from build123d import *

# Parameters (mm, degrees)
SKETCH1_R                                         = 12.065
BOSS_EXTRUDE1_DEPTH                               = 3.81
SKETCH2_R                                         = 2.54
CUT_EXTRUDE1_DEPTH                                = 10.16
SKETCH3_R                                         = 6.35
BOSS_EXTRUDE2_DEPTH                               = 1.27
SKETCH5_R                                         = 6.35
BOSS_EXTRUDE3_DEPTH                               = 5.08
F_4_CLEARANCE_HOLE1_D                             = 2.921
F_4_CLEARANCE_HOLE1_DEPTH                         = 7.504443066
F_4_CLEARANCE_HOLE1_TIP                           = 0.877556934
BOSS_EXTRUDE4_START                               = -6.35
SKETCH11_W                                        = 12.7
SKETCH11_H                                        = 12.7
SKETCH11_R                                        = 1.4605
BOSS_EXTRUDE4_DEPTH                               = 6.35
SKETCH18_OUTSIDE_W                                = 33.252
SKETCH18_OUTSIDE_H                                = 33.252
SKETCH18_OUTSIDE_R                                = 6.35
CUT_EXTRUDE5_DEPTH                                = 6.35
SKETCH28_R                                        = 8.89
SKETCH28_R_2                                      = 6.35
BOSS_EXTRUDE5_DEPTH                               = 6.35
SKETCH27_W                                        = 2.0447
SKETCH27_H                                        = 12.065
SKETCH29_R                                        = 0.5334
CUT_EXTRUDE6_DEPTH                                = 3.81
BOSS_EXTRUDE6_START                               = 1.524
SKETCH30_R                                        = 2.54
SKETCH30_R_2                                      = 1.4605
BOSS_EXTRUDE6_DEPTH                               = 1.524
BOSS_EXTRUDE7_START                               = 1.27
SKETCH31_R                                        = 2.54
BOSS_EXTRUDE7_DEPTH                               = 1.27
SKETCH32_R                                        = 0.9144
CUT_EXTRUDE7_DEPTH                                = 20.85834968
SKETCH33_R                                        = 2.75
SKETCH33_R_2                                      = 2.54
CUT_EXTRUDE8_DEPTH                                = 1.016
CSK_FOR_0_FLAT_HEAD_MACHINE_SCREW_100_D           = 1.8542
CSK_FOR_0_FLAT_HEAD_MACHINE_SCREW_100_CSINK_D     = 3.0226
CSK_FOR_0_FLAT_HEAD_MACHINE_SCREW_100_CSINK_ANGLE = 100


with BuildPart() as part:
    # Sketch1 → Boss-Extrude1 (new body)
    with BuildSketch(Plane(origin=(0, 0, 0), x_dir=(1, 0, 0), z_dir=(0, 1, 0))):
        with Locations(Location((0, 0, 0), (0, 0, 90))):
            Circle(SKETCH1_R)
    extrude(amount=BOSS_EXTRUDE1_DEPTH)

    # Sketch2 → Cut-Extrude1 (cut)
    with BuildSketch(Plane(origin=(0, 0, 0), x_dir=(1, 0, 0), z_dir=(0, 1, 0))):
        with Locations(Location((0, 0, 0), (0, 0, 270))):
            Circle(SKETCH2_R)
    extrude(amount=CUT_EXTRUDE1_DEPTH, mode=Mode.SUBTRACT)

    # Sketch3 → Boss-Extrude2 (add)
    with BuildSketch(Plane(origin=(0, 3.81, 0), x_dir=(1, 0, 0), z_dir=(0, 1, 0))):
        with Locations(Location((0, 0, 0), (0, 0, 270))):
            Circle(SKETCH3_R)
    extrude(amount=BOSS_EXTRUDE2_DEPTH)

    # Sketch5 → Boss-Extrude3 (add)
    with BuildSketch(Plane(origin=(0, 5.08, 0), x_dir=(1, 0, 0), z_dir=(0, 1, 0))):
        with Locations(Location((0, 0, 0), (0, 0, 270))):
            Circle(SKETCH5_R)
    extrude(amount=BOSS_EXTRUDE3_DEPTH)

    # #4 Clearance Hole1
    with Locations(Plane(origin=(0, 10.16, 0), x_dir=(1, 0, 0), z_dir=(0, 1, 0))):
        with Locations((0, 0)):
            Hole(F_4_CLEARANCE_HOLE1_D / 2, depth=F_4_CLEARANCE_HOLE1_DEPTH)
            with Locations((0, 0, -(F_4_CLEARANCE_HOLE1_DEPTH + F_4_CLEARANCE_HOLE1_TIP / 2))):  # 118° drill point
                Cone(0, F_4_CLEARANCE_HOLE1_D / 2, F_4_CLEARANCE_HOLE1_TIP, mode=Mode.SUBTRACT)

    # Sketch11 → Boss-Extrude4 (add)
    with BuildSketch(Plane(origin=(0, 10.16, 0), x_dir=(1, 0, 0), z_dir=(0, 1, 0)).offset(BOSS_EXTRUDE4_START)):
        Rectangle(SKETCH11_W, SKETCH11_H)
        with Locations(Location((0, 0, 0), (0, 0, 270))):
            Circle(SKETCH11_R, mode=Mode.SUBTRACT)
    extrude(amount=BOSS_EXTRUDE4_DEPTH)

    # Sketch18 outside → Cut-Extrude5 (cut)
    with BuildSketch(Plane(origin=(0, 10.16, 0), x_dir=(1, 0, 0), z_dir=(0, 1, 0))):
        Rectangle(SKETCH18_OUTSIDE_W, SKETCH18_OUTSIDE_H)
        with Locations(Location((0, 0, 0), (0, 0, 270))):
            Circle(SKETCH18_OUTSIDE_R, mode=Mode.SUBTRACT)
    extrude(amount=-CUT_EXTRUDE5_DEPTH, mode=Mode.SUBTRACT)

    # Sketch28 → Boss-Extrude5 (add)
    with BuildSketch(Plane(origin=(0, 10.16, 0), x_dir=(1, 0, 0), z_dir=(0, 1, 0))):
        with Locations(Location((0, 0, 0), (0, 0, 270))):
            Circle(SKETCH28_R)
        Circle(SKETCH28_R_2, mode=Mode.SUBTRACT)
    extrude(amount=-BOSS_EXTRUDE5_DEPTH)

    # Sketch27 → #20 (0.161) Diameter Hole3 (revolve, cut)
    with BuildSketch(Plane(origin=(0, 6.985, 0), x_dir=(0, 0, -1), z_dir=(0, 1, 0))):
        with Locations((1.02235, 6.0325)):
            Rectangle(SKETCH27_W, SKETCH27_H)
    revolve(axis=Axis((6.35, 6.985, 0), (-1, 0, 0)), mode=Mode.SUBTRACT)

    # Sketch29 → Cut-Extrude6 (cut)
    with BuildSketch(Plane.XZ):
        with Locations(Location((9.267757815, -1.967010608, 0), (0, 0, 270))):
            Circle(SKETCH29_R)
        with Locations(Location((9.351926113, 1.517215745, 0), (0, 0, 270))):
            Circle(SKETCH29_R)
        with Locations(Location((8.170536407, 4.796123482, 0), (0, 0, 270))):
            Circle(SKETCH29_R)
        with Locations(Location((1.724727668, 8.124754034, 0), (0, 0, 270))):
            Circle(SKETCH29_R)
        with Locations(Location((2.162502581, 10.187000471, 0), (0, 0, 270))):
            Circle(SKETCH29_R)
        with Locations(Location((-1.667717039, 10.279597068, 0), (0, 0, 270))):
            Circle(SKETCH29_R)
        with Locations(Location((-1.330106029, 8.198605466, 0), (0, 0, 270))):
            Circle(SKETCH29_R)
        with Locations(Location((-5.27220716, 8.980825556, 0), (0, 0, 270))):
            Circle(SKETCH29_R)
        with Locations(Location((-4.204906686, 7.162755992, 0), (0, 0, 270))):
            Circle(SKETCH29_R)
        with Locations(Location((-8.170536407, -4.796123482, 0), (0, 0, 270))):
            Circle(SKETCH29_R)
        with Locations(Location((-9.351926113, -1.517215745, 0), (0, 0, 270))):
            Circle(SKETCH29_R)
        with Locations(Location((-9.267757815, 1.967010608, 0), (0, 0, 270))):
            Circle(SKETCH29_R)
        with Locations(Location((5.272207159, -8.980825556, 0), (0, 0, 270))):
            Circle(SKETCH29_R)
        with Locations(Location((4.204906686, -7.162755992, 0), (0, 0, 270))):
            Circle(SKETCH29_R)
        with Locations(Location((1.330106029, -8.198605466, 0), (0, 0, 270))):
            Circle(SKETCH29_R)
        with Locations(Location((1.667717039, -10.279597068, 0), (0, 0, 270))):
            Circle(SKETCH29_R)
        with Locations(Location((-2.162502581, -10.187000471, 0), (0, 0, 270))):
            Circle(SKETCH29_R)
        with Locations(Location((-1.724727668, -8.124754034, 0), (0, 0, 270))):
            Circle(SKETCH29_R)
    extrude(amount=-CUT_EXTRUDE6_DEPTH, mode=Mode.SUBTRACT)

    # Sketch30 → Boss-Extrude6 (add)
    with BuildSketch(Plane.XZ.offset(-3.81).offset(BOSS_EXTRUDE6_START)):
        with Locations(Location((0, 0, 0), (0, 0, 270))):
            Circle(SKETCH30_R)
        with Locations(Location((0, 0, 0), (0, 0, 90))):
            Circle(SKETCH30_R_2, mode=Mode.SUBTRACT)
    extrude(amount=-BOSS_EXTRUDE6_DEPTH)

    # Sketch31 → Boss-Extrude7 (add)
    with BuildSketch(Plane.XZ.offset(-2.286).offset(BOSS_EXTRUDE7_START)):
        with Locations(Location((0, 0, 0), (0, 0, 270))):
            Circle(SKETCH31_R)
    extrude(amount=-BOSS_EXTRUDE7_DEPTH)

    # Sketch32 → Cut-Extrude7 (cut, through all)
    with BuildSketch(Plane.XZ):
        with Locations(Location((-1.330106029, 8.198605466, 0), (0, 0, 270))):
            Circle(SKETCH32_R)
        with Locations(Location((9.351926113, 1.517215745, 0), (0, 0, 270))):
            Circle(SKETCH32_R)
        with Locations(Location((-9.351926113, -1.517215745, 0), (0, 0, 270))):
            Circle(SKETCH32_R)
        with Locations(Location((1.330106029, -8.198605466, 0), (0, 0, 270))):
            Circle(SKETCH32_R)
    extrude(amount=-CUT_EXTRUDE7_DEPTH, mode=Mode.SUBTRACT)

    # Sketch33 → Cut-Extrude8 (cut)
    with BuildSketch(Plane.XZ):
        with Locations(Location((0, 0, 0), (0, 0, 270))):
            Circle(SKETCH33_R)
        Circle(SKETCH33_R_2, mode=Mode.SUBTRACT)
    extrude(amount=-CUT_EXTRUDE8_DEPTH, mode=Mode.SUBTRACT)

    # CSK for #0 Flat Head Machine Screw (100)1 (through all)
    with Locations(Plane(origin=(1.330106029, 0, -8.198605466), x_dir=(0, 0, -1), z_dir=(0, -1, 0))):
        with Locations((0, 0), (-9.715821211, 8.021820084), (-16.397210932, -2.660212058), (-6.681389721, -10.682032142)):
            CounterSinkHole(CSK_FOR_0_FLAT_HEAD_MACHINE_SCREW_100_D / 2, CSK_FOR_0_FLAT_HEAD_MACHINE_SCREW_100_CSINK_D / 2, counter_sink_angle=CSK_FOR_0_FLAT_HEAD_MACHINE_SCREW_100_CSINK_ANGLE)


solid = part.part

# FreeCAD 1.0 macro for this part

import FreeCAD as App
import Part
import Sketcher
Q = App.Units.Quantity

doc = App.newDocument("Part")
body = doc.addObject("PartDesign::Body", "Body")

sketch1 = doc.addObject("Sketcher::SketchObject", "Sketch")
body.addObject(sketch1)
sketch1.AttachmentSupport = (doc.XZ_Plane, [""])
sketch1.MapMode = "FlatFace"
sketch1.addGeometry(Part.Circle(App.Vector(0, 0, 0), App.Vector(0, 0, 1), 12.065), False)
sketch1.addConstraint([
    Sketcher.Constraint("Coincident", 0, 3, -1, 1),
    Sketcher.Constraint("Diameter", 0, Q("0.95 in")),
])
pad1 = doc.addObject("PartDesign::Pad", "Pad")
body.addObject(pad1)
pad1.Profile = sketch1
pad1.Length = Q("0.15 in")
pad1.Reversed = True

sketch2 = doc.addObject("Sketcher::SketchObject", "Sketch001")
body.addObject(sketch2)
sketch2.AttachmentSupport = (doc.XZ_Plane, [""])
sketch2.MapMode = "FlatFace"
sketch2.addGeometry(Part.Circle(App.Vector(0, 0, 0), App.Vector(0, 0, 1), 2.54), False)
sketch2.addConstraint([
    Sketcher.Constraint("Coincident", 0, 3, -1, 1),
    Sketcher.Constraint("Diameter", 0, Q("0.2 in")),
])
pocket1 = doc.addObject("PartDesign::Pocket", "Pocket")
body.addObject(pocket1)
pocket1.Profile = sketch2
pocket1.Length = Q("0.4 in")

sketch3 = doc.addObject("Sketcher::SketchObject", "Sketch002")
body.addObject(sketch3)
sketch3.AttachmentSupport = (doc.XZ_Plane, [""])
sketch3.MapMode = "FlatFace"
sketch3.AttachmentOffset = App.Placement(App.Vector(0, 0, -0.15 * 25.4), App.Rotation())
sketch3.addGeometry(Part.Circle(App.Vector(0, 0, 0), App.Vector(0, 0, 1), 6.35), False)
sketch3.addConstraint([
    Sketcher.Constraint("Coincident", 0, 3, -1, 1),
    Sketcher.Constraint("Diameter", 0, Q("0.5 in")),
])
pad2 = doc.addObject("PartDesign::Pad", "Pad001")
body.addObject(pad2)
pad2.Profile = sketch3
pad2.Length = Q("0.05 in")
pad2.Reversed = True

sketch4 = doc.addObject("Sketcher::SketchObject", "Sketch003")
body.addObject(sketch4)
sketch4.AttachmentSupport = (doc.XZ_Plane, [""])
sketch4.MapMode = "FlatFace"
sketch4.AttachmentOffset = App.Placement(App.Vector(0, 0, -0.2 * 25.4), App.Rotation())
sketch4.addGeometry(Part.Circle(App.Vector(0, 0, 0), App.Vector(0, 0, 1), 6.35), False)
sketch4.addConstraint([
    Sketcher.Constraint("Coincident", 0, 3, -1, 1),
    Sketcher.Constraint("Diameter", 0, Q("0.5 in")),
])
pad3 = doc.addObject("PartDesign::Pad", "Pad002")
body.addObject(pad3)
pad3.Profile = sketch4
pad3.Length = Q("0.2 in")
pad3.Reversed = True

sketch5 = doc.addObject("Sketcher::SketchObject", "Sketch004")
body.addObject(sketch5)
sketch5.AttachmentSupport = (doc.XZ_Plane, [""])
sketch5.MapMode = "FlatFace"
sketch5.AttachmentOffset = App.Placement(App.Vector(0, 0, -0.4 * 25.4), App.Rotation())
sketch5.addGeometry(Part.Circle(App.Vector(0, 0, 0), App.Vector(0, 0, 1), 1.4605), False)
sketch5.addConstraint([
    Sketcher.Constraint("Coincident", 0, 3, -1, 1),
    Sketcher.Constraint("Diameter", 0, Q("0.115 in")),
])
doc.recompute()
hole = doc.addObject("PartDesign::Hole", "Hole")
body.addObject(hole)
hole.Profile = sketch5
hole.ThreadType = "None"
hole.Diameter = Q("0.115 in")
hole.DepthType = "Dimension"
hole.Depth = 7.504443
hole.DrillPoint = "Angled"
hole.DrillPointAngle = 118
hole.Reversed = True

sketch6 = doc.addObject("Sketcher::SketchObject", "Sketch005")
body.addObject(sketch6)
sketch6.AttachmentSupport = (doc.XZ_Plane, [""])
sketch6.MapMode = "FlatFace"
sketch6.AttachmentOffset = App.Placement(App.Vector(0, 0, -0.15 * 25.4), App.Rotation())
sketch6.addGeometry([
    Part.LineSegment(App.Vector(-6.35, -6.35, 0), App.Vector(-6.35, 6.35, 0)),
    Part.LineSegment(App.Vector(-6.35, 6.35, 0), App.Vector(6.35, 6.35, 0)),
    Part.LineSegment(App.Vector(6.35, 6.35, 0), App.Vector(6.35, -6.35, 0)),
    Part.LineSegment(App.Vector(6.35, -6.35, 0), App.Vector(-6.35, -6.35, 0)),
    Part.Circle(App.Vector(0, 0, 0), App.Vector(0, 0, 1), 1.4605),
], False)
sketch6.addConstraint([
    Sketcher.Constraint("Coincident", 0, 2, 1, 1),
    Sketcher.Constraint("Coincident", 1, 2, 2, 1),
    Sketcher.Constraint("Coincident", 2, 2, 3, 1),
    Sketcher.Constraint("Coincident", 3, 2, 0, 1),
    Sketcher.Constraint("Vertical", 0),
    Sketcher.Constraint("Horizontal", 1),
    Sketcher.Constraint("Vertical", 2),
    Sketcher.Constraint("Horizontal", 3),
    Sketcher.Constraint("Coincident", 4, 3, -1, 1),
    Sketcher.Constraint("Symmetric", 0, 2, 2, 2, -1, 1),
    Sketcher.Constraint("Equal", 3, 0),
    Sketcher.Constraint("Diameter", 4, Q("0.115 in")),
    Sketcher.Constraint("DistanceX", 1, 1, 1, 2, Q("0.5 in")),
])
pad4 = doc.addObject("PartDesign::Pad", "Pad003")
body.addObject(pad4)
pad4.Profile = sketch6
pad4.Length = Q("0.25 in")
pad4.Reversed = True

sketch7 = doc.addObject("Sketcher::SketchObject", "Sketch006")
body.addObject(sketch7)
sketch7.AttachmentSupport = (doc.XZ_Plane, [""])
sketch7.MapMode = "FlatFace"
sketch7.AttachmentOffset = App.Placement(App.Vector(0, 0, -0.4 * 25.4), App.Rotation())
sketch7.addGeometry([
    Part.LineSegment(App.Vector(-16.626, -16.626, 0), App.Vector(-16.626, 16.626, 0)),
    Part.LineSegment(App.Vector(-16.626, 16.626, 0), App.Vector(16.626, 16.626, 0)),
    Part.LineSegment(App.Vector(16.626, 16.626, 0), App.Vector(16.626, -16.626, 0)),
    Part.LineSegment(App.Vector(16.626, -16.626, 0), App.Vector(-16.626, -16.626, 0)),
    Part.Circle(App.Vector(0, 0, 0), App.Vector(0, 0, 1), 6.35),
], False)
sketch7.addConstraint([
    Sketcher.Constraint("Coincident", 0, 2, 1, 1),
    Sketcher.Constraint("Coincident", 1, 2, 2, 1),
    Sketcher.Constraint("Coincident", 2, 2, 3, 1),
    Sketcher.Constraint("Coincident", 3, 2, 0, 1),
    Sketcher.Constraint("Vertical", 0),
    Sketcher.Constraint("Horizontal", 1),
    Sketcher.Constraint("Vertical", 2),
    Sketcher.Constraint("Horizontal", 3),
    Sketcher.Constraint("Coincident", 4, 3, -1, 1),
    Sketcher.Constraint("Symmetric", 0, 2, 2, 2, -1, 1),
    Sketcher.Constraint("Equal", 3, 0),
    Sketcher.Constraint("Diameter", 4, Q("0.5 in")),
    Sketcher.Constraint("DistanceX", 1, 1, 1, 2, 33.252),
])
pocket2 = doc.addObject("PartDesign::Pocket", "Pocket001")
body.addObject(pocket2)
pocket2.Profile = sketch7
pocket2.Length = Q("0.25 in")
pocket2.Reversed = True

sketch8 = doc.addObject("Sketcher::SketchObject", "Sketch007")
body.addObject(sketch8)
sketch8.AttachmentSupport = (doc.XZ_Plane, [""])
sketch8.MapMode = "FlatFace"
sketch8.AttachmentOffset = App.Placement(App.Vector(0, 0, -0.4 * 25.4), App.Rotation())
sketch8.addGeometry([
    Part.Circle(App.Vector(0, 0, 0), App.Vector(0, 0, 1), 8.89),
    Part.Circle(App.Vector(0, 0, 0), App.Vector(0, 0, 1), 6.35),
], False)
sketch8.addConstraint([
    Sketcher.Constraint("Coincident", 0, 3, -1, 1),
    Sketcher.Constraint("Coincident", 1, 3, -1, 1),
    Sketcher.Constraint("Diameter", 0, Q("0.7 in")),
    Sketcher.Constraint("Diameter", 1, Q("0.5 in")),
])
pad5 = doc.addObject("PartDesign::Pad", "Pad004")
body.addObject(pad5)
pad5.Profile = sketch8
pad5.Length = Q("0.25 in")

sketch9 = doc.addObject("Sketcher::SketchObject", "Sketch008")
body.addObject(sketch9)
sketch9.AttachmentSupport = (doc.XZ_Plane, [""])
sketch9.MapMode = "FlatFace"
sketch9.AttachmentOffset = App.Placement(App.Vector(0, 0, -0.275 * 25.4), App.Rotation())
sketch9.addGeometry([
    Part.LineSegment(App.Vector(-12.065, 0, 0), App.Vector(0, 0, 0)),
    Part.LineSegment(App.Vector(0, 0, 0), App.Vector(0, -2.0447, 0)),
    Part.LineSegment(App.Vector(0, -2.0447, 0), App.Vector(-12.065, -2.0447, 0)),
    Part.LineSegment(App.Vector(-12.065, -2.0447, 0), App.Vector(-12.065, 0, 0)),
], False)
sketch9.addConstraint([
    Sketcher.Constraint("Coincident", 0, 2, 1, 1),
    Sketcher.Constraint("Coincident", 1, 2, 2, 1),
    Sketcher.Constraint("Coincident", 2, 2, 3, 1),
    Sketcher.Constraint("Coincident", 3, 2, 0, 1),
    Sketcher.Constraint("Horizontal", 0),
    Sketcher.Constraint("Vertical", 1),
    Sketcher.Constraint("Horizontal", 2),
    Sketcher.Constraint("Vertical", 3),
    Sketcher.Constraint("Coincident", 0, 2, -1, 1),
    Sketcher.Constraint("DistanceX", 0, 1, 0, 2, Q("0.475 in")),
    Sketcher.Constraint("DistanceY", 1, 2, 1, 1, Q("0.0805 in")),
])
groove = doc.addObject("PartDesign::Groove", "Groove")
body.addObject(groove)
groove.Profile = sketch9
groove.ReferenceAxis = (sketch9, ["H_Axis"])
groove.Angle = 360

sketch10 = doc.addObject("Sketcher::SketchObject", "Sketch009")
body.addObject(sketch10)
sketch10.AttachmentSupport = (doc.XZ_Plane, [""])
sketch10.MapMode = "FlatFace"
sketch10.addGeometry([
    Part.Circle(App.Vector(9.267758, -1.967011, 0), App.Vector(0, 0, 1), 0.5334),
    Part.Circle(App.Vector(9.351926, 1.517216, 0), App.Vector(0, 0, 1), 0.5334),
    Part.Circle(App.Vector(8.170536, 4.796123, 0), App.Vector(0, 0, 1), 0.5334),
    Part.Circle(App.Vector(1.724728, 8.124754, 0), App.Vector(0, 0, 1), 0.5334),
    Part.Circle(App.Vector(2.162503, 10.187, 0), App.Vector(0, 0, 1), 0.5334),
    Part.Circle(App.Vector(-1.667717, 10.279597, 0), App.Vector(0, 0, 1), 0.5334),
    Part.Circle(App.Vector(-1.330106, 8.198605, 0), App.Vector(0, 0, 1), 0.5334),
    Part.Circle(App.Vector(-5.272207, 8.980826, 0), App.Vector(0, 0, 1), 0.5334),
    Part.Circle(App.Vector(-4.204907, 7.162756, 0), App.Vector(0, 0, 1), 0.5334),
    Part.Circle(App.Vector(-8.170536, -4.796123, 0), App.Vector(0, 0, 1), 0.5334),
    Part.Circle(App.Vector(-9.351926, -1.517216, 0), App.Vector(0, 0, 1), 0.5334),
    Part.Circle(App.Vector(-9.267758, 1.967011, 0), App.Vector(0, 0, 1), 0.5334),
    Part.Circle(App.Vector(5.272207, -8.980826, 0), App.Vector(0, 0, 1), 0.5334),
    Part.Circle(App.Vector(4.204907, -7.162756, 0), App.Vector(0, 0, 1), 0.5334),
    Part.Circle(App.Vector(1.330106, -8.198605, 0), App.Vector(0, 0, 1), 0.5334),
    Part.Circle(App.Vector(1.667717, -10.279597, 0), App.Vector(0, 0, 1), 0.5334),
    Part.Circle(App.Vector(-2.162503, -10.187, 0), App.Vector(0, 0, 1), 0.5334),
    Part.Circle(App.Vector(-1.724728, -8.124754, 0), App.Vector(0, 0, 1), 0.5334),
], False)
sketch10.addConstraint([
    Sketcher.Constraint("Equal", 0, 1),
    Sketcher.Constraint("Equal", 1, 2),
    Sketcher.Constraint("Equal", 2, 3),
    Sketcher.Constraint("Equal", 3, 4),
    Sketcher.Constraint("Equal", 4, 5),
    Sketcher.Constraint("Equal", 5, 6),
    Sketcher.Constraint("Equal", 6, 7),
    Sketcher.Constraint("Equal", 7, 8),
    Sketcher.Constraint("Equal", 8, 9),
    Sketcher.Constraint("Equal", 9, 10),
    Sketcher.Constraint("Equal", 10, 11),
    Sketcher.Constraint("Equal", 11, 12),
    Sketcher.Constraint("Equal", 12, 13),
    Sketcher.Constraint("Equal", 13, 14),
    Sketcher.Constraint("Equal", 14, 15),
    Sketcher.Constraint("Equal", 15, 16),
    Sketcher.Constraint("Equal", 16, 17),
    Sketcher.Constraint("Symmetric", 2, 3, 9, 3, -1, 1),
    Sketcher.Constraint("Symmetric", 1, 3, 10, 3, -1, 1),
    Sketcher.Constraint("Symmetric", 0, 3, 11, 3, -1, 1),
    Sketcher.Constraint("Symmetric", 7, 3, 12, 3, -1, 1),
    Sketcher.Constraint("Symmetric", 8, 3, 13, 3, -1, 1),
    Sketcher.Constraint("Symmetric", 6, 3, 14, 3, -1, 1),
    Sketcher.Constraint("Symmetric", 5, 3, 15, 3, -1, 1),
    Sketcher.Constraint("Symmetric", 4, 3, 16, 3, -1, 1),
    Sketcher.Constraint("Symmetric", 3, 3, 17, 3, -1, 1),
    Sketcher.Constraint("Diameter", 0, Q("0.042 in")),
    Sketcher.Constraint("DistanceY", -1, 1, 4, 3, 10.187),
    Sketcher.Constraint("DistanceX", 3, 3, 1, 3, 7.627198),
    Sketcher.Constraint("DistanceX", 7, 3, 6, 3, 3.942101),
    Sketcher.Constraint("DistanceX", 7, 3, 8, 3, 1.0673),
    Sketcher.Constraint("DistanceY", 8, 3, 3, 3, 0.961998),
    Sketcher.Constraint("DistanceY", 0, 3, -1, 1, 1.967011),
    Sketcher.Constraint("DistanceX", 0, 3, 1, 3, 0.084168),
    Sketcher.Constraint("DistanceX", 2, 3, 1, 3, 1.18139),
    Sketcher.Constraint("DistanceY", 2, 3, 3, 3, 3.328631),
    Sketcher.Constraint("DistanceY", 1, 3, 3, 3, 6.607538),
    Sketcher.Constraint("DistanceX", 5, 3, 4, 3, 3.83022),
    Sketcher.Constraint("DistanceY", 1, 3, 5, 3, 8.762381),
    Sketcher.Constraint("DistanceX", 5, 3, 6, 3, 0.337611),
    Sketcher.Constraint("DistanceY", 6, 3, 5, 3, 2.080992),
    Sketcher.Constraint("DistanceY", 7, 3, 5, 3, 1.298772),
    Sketcher.Constraint("DistanceX", 9, 3, 8, 3, 3.96563),
    Sketcher.Constraint("DistanceY", 9, 3, 8, 3, 11.958879),
    Sketcher.Constraint("DistanceX", -1, 1, 0, 3, 9.267758),
])
pocket3 = doc.addObject("PartDesign::Pocket", "Pocket002")
body.addObject(pocket3)
pocket3.Profile = sketch10
pocket3.Length = Q("0.15 in")

sketch11 = doc.addObject("Sketcher::SketchObject", "Sketch010")
body.addObject(sketch11)
sketch11.AttachmentSupport = (doc.XZ_Plane, [""])
sketch11.MapMode = "FlatFace"
sketch11.AttachmentOffset = App.Placement(App.Vector(0, 0, -0.09 * 25.4), App.Rotation())
sketch11.addGeometry([
    Part.Circle(App.Vector(0, 0, 0), App.Vector(0, 0, 1), 2.54),
    Part.Circle(App.Vector(0, 0, 0), App.Vector(0, 0, 1), 1.4605),
], False)
sketch11.addConstraint([
    Sketcher.Constraint("Coincident", 0, 3, -1, 1),
    Sketcher.Constraint("Coincident", 1, 3, -1, 1),
    Sketcher.Constraint("Diameter", 0, Q("0.2 in")),
    Sketcher.Constraint("Diameter", 1, Q("0.115 in")),
])
pad6 = doc.addObject("PartDesign::Pad", "Pad005")
body.addObject(pad6)
pad6.Profile = sketch11
pad6.Length = Q("0.06 in")
pad6.Reversed = True

sketch12 = doc.addObject("Sketcher::SketchObject", "Sketch011")
body.addObject(sketch12)
sketch12.AttachmentSupport = (doc.XZ_Plane, [""])
sketch12.MapMode = "FlatFace"
sketch12.AttachmentOffset = App.Placement(App.Vector(0, 0, -0.04 * 25.4), App.Rotation())
sketch12.addGeometry(Part.Circle(App.Vector(0, 0, 0), App.Vector(0, 0, 1), 2.54), False)
sketch12.addConstraint([
    Sketcher.Constraint("Coincident", 0, 3, -1, 1),
    Sketcher.Constraint("Diameter", 0, Q("0.2 in")),
])
pad7 = doc.addObject("PartDesign::Pad", "Pad006")
body.addObject(pad7)
pad7.Profile = sketch12
pad7.Length = Q("0.05 in")
pad7.Reversed = True

sketch13 = doc.addObject("Sketcher::SketchObject", "Sketch012")
body.addObject(sketch13)
sketch13.AttachmentSupport = (doc.XZ_Plane, [""])
sketch13.MapMode = "FlatFace"
sketch13.addGeometry([
    Part.Circle(App.Vector(-1.330106, 8.198605, 0), App.Vector(0, 0, 1), 0.9144),
    Part.Circle(App.Vector(9.351926, 1.517216, 0), App.Vector(0, 0, 1), 0.9144),
    Part.Circle(App.Vector(-9.351926, -1.517216, 0), App.Vector(0, 0, 1), 0.9144),
    Part.Circle(App.Vector(1.330106, -8.198605, 0), App.Vector(0, 0, 1), 0.9144),
], False)
sketch13.addConstraint([
    Sketcher.Constraint("Equal", 0, 1),
    Sketcher.Constraint("Equal", 1, 2),
    Sketcher.Constraint("Equal", 2, 3),
    Sketcher.Constraint("Symmetric", 1, 3, 2, 3, -1, 1),
    Sketcher.Constraint("Symmetric", 0, 3, 3, 3, -1, 1),
    Sketcher.Constraint("Diameter", 0, Q("0.072 in")),
    Sketcher.Constraint("DistanceY", 1, 3, 0, 3, 6.68139),
    Sketcher.Constraint("DistanceX", 2, 3, 0, 3, 8.02182),
    Sketcher.Constraint("DistanceY", 2, 3, 0, 3, 9.715821),
    Sketcher.Constraint("DistanceX", 0, 3, -1, 1, 1.330106),
])
pocket4 = doc.addObject("PartDesign::Pocket", "Pocket003")
body.addObject(pocket4)
pocket4.Profile = sketch13
pocket4.Type = "ThroughAll"

sketch14 = doc.addObject("Sketcher::SketchObject", "Sketch013")
body.addObject(sketch14)
sketch14.AttachmentSupport = (doc.XZ_Plane, [""])
sketch14.MapMode = "FlatFace"
sketch14.addGeometry([
    Part.Circle(App.Vector(0, 0, 0), App.Vector(0, 0, 1), 2.75),
    Part.Circle(App.Vector(0, 0, 0), App.Vector(0, 0, 1), 2.54),
], False)
sketch14.addConstraint([
    Sketcher.Constraint("Coincident", 0, 3, -1, 1),
    Sketcher.Constraint("Coincident", 1, 3, -1, 1),
    Sketcher.Constraint("Diameter", 1, Q("0.2 in")),
    Sketcher.Constraint("Diameter", 0, 5.5),
])
pocket5 = doc.addObject("PartDesign::Pocket", "Pocket004")
body.addObject(pocket5)
pocket5.Profile = sketch14
pocket5.Length = Q("0.04 in")

sketch15 = doc.addObject("Sketcher::SketchObject", "Sketch014")
body.addObject(sketch15)
sketch15.AttachmentSupport = (doc.XZ_Plane, [""])
sketch15.MapMode = "FlatFace"
sketch15.addGeometry([
    Part.Circle(App.Vector(1.330106, -8.198605, 0), App.Vector(0, 0, 1), 0.9271),
    Part.Circle(App.Vector(9.351926, 1.517216, 0), App.Vector(0, 0, 1), 0.9271),
    Part.Circle(App.Vector(-1.330106, 8.198605, 0), App.Vector(0, 0, 1), 0.9271),
    Part.Circle(App.Vector(-9.351926, -1.517216, 0), App.Vector(0, 0, 1), 0.9271),
], False)
sketch15.addConstraint([
    Sketcher.Constraint("Equal", 0, 1),
    Sketcher.Constraint("Equal", 1, 2),
    Sketcher.Constraint("Equal", 2, 3),
    Sketcher.Constraint("Symmetric", 0, 3, 2, 3, -1, 1),
    Sketcher.Constraint("Symmetric", 1, 3, 3, 3, -1, 1),
    Sketcher.Constraint("Diameter", 0, Q("0.073 in")),
    Sketcher.Constraint("DistanceX", 0, 3, 1, 3, 8.02182),
    Sketcher.Constraint("DistanceY", 0, 3, 1, 3, 9.715821),
    Sketcher.Constraint("DistanceY", 1, 3, 2, 3, 6.68139),
    Sketcher.Constraint("DistanceX", -1, 1, 0, 3, 1.330106),
])
doc.recompute()
hole2 = doc.addObject("PartDesign::Hole", "Hole001")
body.addObject(hole2)
hole2.Profile = sketch15
hole2.ThreadType = "None"
hole2.Diameter = Q("0.073 in")
hole2.DepthType = "ThroughAll"
hole2.HoleCutType = "Countersink"
hole2.HoleCutDiameter = Q("0.119 in")
hole2.HoleCutCountersinkAngle = 100

doc.recompute()
